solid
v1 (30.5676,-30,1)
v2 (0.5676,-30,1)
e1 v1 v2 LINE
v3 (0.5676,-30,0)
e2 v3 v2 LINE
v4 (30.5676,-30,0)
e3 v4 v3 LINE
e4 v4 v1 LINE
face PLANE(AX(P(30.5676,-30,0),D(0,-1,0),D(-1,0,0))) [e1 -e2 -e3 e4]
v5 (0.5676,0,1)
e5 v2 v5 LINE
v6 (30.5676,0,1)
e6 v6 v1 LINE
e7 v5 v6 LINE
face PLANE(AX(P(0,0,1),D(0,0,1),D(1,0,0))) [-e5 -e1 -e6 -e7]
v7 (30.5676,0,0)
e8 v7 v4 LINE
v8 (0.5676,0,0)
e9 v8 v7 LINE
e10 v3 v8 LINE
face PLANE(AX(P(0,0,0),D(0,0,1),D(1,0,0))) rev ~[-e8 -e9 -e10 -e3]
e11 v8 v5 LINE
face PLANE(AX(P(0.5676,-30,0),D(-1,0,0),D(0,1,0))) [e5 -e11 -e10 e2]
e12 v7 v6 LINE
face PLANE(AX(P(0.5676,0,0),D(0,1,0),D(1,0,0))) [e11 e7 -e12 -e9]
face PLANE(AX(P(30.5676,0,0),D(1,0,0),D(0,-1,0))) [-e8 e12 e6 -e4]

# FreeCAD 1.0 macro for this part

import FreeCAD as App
import Part
import Sketcher

V = App.Vector
Q = App.Units.Quantity

doc = App.newDocument("Part")
params = doc.addObject("Spreadsheet::Sheet", "Params")
for row, (alias, value) in enumerate([
    ("sketch1_width", "30 mm"),
    ("pad1_length", "1 mm"),
], start=1):
    params.set(f"A{row}", alias)
    params.set(f"B{row}", "=" + value)
    params.setAlias(f"B{row}", alias)

body = doc.addObject("PartDesign::Body", "Body")

# Sketch on XY plane
sketch1 = body.newObject("Sketcher::SketchObject", "Sketch")
sketch1.AttachmentSupport = (doc.getObject("XY_Plane"), [""])
sketch1.MapMode = "FlatFace"
sketch1.addGeometry([
    Part.LineSegment(V(30.5676, 0, 0), V(0.5676, 0, 0)),
    Part.LineSegment(V(0.5676, 0, 0), V(0.5676, -30, 0)),
    Part.LineSegment(V(0.5676, -30, 0), V(30.5676, -30, 0)),
    Part.LineSegment(V(30.5676, -30, 0), V(30.5676, 0, 0)),
], False)
sketch1.addConstraint([
    Sketcher.Constraint("Coincident", 0, 2, 1, 1),
    Sketcher.Constraint("Coincident", 1, 2, 2, 1),
    Sketcher.Constraint("Coincident", 2, 2, 3, 1),
    Sketcher.Constraint("Coincident", 3, 2, 0, 1),
    Sketcher.Constraint("Horizontal", 0),
    Sketcher.Constraint("Vertical", 1),
    Sketcher.Constraint("Horizontal", 2),
    Sketcher.Constraint("Vertical", 3),
    Sketcher.Constraint("PointOnObject", 0, 2, -1),
    Sketcher.Constraint("Equal", 2, 1),
    Sketcher.Constraint("DistanceX", 0, 2, 0, 1, Q("30 mm")),
    Sketcher.Constraint("DistanceX", -1, 1, 0, 2, Q("0.5676 mm")),
])
sketch1.setExpression("Constraints[10]", "Params.sketch1_width")
pad1 = body.newObject("PartDesign::Pad", "Pad")
pad1.Profile = sketch1
pad1.setExpression("Length", "Params.pad1_length")

doc.recompute()
